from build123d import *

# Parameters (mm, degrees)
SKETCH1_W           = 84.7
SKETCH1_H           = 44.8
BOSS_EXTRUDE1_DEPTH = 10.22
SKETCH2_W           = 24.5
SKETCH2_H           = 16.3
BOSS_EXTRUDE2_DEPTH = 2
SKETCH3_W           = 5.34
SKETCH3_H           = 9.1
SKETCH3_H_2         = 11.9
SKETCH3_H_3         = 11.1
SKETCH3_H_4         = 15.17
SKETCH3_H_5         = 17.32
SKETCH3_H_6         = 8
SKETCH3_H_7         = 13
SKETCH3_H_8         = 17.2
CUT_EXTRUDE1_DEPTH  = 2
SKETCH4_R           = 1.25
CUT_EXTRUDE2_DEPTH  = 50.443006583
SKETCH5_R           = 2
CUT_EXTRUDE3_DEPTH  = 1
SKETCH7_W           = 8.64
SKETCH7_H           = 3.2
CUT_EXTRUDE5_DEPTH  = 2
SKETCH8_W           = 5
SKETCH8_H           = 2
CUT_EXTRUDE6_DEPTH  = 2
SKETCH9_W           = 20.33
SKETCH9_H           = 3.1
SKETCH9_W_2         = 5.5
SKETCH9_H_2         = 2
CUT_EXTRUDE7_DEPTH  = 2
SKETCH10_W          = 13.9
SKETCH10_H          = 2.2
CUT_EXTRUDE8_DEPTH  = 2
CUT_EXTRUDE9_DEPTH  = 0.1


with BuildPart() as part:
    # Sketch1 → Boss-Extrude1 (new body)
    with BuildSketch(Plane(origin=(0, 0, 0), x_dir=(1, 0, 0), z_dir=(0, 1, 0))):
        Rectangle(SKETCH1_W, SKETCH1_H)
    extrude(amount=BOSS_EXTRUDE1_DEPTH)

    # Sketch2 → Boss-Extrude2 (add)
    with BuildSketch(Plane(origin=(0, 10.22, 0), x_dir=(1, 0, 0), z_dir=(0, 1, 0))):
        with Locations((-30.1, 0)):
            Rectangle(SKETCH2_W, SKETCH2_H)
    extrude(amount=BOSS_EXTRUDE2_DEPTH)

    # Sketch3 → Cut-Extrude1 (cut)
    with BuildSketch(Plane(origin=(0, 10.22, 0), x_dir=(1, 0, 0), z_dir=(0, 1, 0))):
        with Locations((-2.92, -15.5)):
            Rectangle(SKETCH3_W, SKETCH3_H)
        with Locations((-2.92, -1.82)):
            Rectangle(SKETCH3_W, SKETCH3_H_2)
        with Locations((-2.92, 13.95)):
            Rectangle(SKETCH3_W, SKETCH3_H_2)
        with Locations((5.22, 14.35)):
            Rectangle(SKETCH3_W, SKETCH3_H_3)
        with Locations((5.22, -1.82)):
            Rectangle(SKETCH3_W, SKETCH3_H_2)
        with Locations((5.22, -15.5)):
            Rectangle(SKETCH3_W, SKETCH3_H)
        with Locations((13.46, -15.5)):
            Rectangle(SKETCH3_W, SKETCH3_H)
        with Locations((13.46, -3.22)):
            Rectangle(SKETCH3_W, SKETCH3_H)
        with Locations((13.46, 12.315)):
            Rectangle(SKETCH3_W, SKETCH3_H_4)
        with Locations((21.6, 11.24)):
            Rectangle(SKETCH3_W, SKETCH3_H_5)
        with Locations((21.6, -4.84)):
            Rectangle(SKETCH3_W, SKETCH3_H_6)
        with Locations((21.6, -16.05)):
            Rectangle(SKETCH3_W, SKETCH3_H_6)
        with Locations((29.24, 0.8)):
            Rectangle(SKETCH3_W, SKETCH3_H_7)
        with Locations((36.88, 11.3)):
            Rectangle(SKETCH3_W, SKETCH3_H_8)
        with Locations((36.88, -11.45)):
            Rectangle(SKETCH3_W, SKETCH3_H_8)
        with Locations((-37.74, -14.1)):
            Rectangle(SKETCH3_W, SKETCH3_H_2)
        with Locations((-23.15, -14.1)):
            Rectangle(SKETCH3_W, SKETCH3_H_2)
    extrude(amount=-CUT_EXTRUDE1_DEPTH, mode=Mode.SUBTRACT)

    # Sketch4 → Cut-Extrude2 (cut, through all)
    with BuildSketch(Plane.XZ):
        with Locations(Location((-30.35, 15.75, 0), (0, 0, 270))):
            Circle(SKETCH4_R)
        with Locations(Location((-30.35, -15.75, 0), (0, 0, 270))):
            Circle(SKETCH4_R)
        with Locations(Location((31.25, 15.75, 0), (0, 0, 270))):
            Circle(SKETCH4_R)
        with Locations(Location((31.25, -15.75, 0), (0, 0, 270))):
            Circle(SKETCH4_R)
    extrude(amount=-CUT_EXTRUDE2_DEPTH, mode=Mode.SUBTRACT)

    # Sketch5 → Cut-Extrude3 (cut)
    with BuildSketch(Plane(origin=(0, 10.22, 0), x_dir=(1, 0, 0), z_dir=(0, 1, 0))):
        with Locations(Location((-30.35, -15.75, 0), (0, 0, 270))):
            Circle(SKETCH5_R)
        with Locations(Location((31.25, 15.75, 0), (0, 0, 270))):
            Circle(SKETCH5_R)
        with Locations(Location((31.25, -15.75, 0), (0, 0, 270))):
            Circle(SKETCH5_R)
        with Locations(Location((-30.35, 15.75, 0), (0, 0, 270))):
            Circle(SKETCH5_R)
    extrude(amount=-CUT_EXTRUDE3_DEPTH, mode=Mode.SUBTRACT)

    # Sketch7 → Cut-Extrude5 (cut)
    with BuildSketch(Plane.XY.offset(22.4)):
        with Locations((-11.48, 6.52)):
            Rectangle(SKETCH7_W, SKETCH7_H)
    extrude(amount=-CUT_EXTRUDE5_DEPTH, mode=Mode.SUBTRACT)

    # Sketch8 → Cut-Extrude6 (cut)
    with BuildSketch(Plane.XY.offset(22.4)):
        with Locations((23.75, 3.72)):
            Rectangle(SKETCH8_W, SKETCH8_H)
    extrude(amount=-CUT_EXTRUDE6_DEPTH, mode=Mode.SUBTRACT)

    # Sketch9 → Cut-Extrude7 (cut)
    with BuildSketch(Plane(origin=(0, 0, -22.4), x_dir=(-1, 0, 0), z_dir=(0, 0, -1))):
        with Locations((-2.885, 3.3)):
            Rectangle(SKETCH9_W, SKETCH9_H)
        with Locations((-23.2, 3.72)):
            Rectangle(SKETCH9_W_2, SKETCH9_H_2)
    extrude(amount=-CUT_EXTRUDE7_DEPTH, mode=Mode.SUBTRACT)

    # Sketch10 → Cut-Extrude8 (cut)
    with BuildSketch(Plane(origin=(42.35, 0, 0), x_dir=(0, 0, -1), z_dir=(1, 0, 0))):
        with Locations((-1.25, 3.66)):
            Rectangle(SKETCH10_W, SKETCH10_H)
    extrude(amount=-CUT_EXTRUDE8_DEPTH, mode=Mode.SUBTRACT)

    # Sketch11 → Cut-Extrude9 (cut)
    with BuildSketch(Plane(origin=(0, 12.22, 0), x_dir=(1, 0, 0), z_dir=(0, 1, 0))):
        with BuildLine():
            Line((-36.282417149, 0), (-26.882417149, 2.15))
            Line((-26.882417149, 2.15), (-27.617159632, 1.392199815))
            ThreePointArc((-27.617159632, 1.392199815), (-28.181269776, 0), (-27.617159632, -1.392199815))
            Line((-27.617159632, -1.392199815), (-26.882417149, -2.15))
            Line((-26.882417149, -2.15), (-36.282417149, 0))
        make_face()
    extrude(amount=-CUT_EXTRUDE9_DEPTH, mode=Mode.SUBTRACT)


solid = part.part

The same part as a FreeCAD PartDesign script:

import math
import FreeCAD as App
import Part
import Sketcher

V = App.Vector
Q = App.Units.Quantity


def add_polygon(sketch, points):
    """Adds a closed chain of lines whose ends are joined by coincident constraints."""
    first, n = sketch.GeometryCount, len(points)
    for a, b in zip(points, points[1:] + points[:1]):
        sketch.addGeometry(Part.LineSegment(App.Vector(*a, 0), App.Vector(*b, 0)), False)
    for i in range(n):
        sketch.addConstraint(Sketcher.Constraint("Coincident", first + i, 2, first + (i + 1) % n, 1))

doc = App.newDocument("Part")
body = doc.addObject("PartDesign::Body", "Body")

# Sketch on XZ plane
sketch1 = doc.addObject("Sketcher::SketchObject", "Sketch")
body.addObject(sketch1)
sketch1.AttachmentSupport = (doc.XZ_Plane, [""])
sketch1.MapMode = "FlatFace"
add_polygon(sketch1, [(-42, -22), (-42, 22), (42, 22), (42, -22)])  # lines 0-3
sketch1.addConstraint(Sketcher.Constraint("Vertical", 0))
sketch1.addConstraint(Sketcher.Constraint("Horizontal", 1))
sketch1.addConstraint(Sketcher.Constraint("Vertical", 2))
sketch1.addConstraint(Sketcher.Constraint("Horizontal", 3))
sketch1.addConstraint(Sketcher.Constraint("Symmetric", 0, 2, 2, 2, -1, 1))
sketch1.addConstraint(Sketcher.Constraint("DistanceX", 1, 1, 1, 2, Q("84.7 mm")))
sketch1.addConstraint(Sketcher.Constraint("DistanceY", 0, 1, 0, 2, Q("44.8 mm")))
pad1 = doc.addObject("PartDesign::Pad", "Pad")
body.addObject(pad1)
pad1.Profile = sketch1
pad1.Length = 10.22
pad1.Reversed = True

# Sketch on XZ plane
sketch2 = doc.addObject("Sketcher::SketchObject", "Sketch001")
body.addObject(sketch2)
sketch2.AttachmentSupport = (doc.XZ_Plane, [""])
sketch2.MapMode = "FlatFace"
sketch2.AttachmentOffset = App.Placement(V(0, 0, -10.22), App.Rotation())
add_polygon(sketch2, [(-42, -8), (-42, 8), (-18, 8), (-18, -8)])  # lines 0-3
sketch2.addConstraint(Sketcher.Constraint("Vertical", 0))
sketch2.addConstraint(Sketcher.Constraint("Horizontal", 1))
sketch2.addConstraint(Sketcher.Constraint("Vertical", 2))
sketch2.addConstraint(Sketcher.Constraint("Horizontal", 3))
sketch2.addConstraint(Sketcher.Constraint("DistanceX", 1, 1, 1, 2, Q("24.5 mm")))
sketch2.addConstraint(Sketcher.Constraint("DistanceY", 0, 1, 0, 2, Q("16.3 mm")))
sketch2.addConstraint(Sketcher.Constraint("DistanceX", 0, 2, -1, 1, Q("42.35 mm")))
sketch2.addConstraint(Sketcher.Constraint("DistanceY", -1, 1, 0, 2, Q("8.15 mm")))
pad2 = doc.addObject("PartDesign::Pad", "Pad001")
body.addObject(pad2)
pad2.Profile = sketch2
pad2.Length = 2
pad2.Reversed = True

# Sketch on XZ plane
sketch3 = doc.addObject("Sketcher::SketchObject", "Sketch002")
body.addObject(sketch3)
sketch3.AttachmentSupport = (doc.XZ_Plane, [""])
sketch3.MapMode = "FlatFace"
sketch3.AttachmentOffset = App.Placement(V(0, 0, -10.22), App.Rotation())
add_polygon(sketch3, [(-6, 11), (-6, 20), (0, 20), (0, 11)])  # lines 0-3
add_polygon(sketch3, [(-6, -4), (-6, 8), (0, 8), (0, -4)])  # lines 4-7
add_polygon(sketch3, [(-6, -20), (-6, -8), (0, -8), (0, -20)])  # lines 8-11
add_polygon(sketch3, [(3, -20), (3, -9), (8, -9), (8, -20)])  # lines 12-15
add_polygon(sketch3, [(3, -4), (3, 8), (8, 8), (8, -4)])  # lines 16-19
add_polygon(sketch3, [(3, 11), (3, 20), (8, 20), (8, 11)])  # lines 20-23
add_polygon(sketch3, [(11, 11), (11, 20), (16, 20), (16, 11)])  # lines 24-27
add_polygon(sketch3, [(11, -1), (11, 8), (16, 8), (16, -1)])  # lines 28-31
add_polygon(sketch3, [(11, -20), (11, -5), (16, -5), (16, -20)])  # lines 32-35
add_polygon(sketch3, [(19, -20), (19, -3), (24, -3), (24, -20)])  # lines 36-39
add_polygon(sketch3, [(19, 1), (19, 9), (24, 9), (24, 1)])  # lines 40-43
add_polygon(sketch3, [(19, 12), (19, 20), (24, 20), (24, 12)])  # lines 44-47
add_polygon(sketch3, [(27, -7), (27, 6), (32, 6), (32, -7)])  # lines 48-51
add_polygon(sketch3, [(34, -20), (34, -3), (40, -3), (40, -20)])  # lines 52-55
add_polygon(sketch3, [(34, 3), (34, 20), (40, 20), (40, 3)])  # lines 56-59
add_polygon(sketch3, [(-40, 8), (-40, 20), (-35, 20), (-35, 8)])  # lines 60-63
add_polygon(sketch3, [(-26, 8), (-26, 20), (-20, 20), (-20, 8)])  # lines 64-67
sketch3.addConstraint(Sketcher.Constraint("Vertical", 0))
sketch3.addConstraint(Sketcher.Constraint("Horizontal", 1))
sketch3.addConstraint(Sketcher.Constraint("Vertical", 2))
sketch3.addConstraint(Sketcher.Constraint("Horizontal", 3))
sketch3.addConstraint(Sketcher.Constraint("Vertical", 4))
sketch3.addConstraint(Sketcher.Constraint("Horizontal", 5))
sketch3.addConstraint(Sketcher.Constraint("Vertical", 6))
sketch3.addConstraint(Sketcher.Constraint("Horizontal", 7))
sketch3.addConstraint(Sketcher.Constraint("Vertical", 8))
sketch3.addConstraint(Sketcher.Constraint("Horizontal", 9))
sketch3.addConstraint(Sketcher.Constraint("Vertical", 10))
sketch3.addConstraint(Sketcher.Constraint("Horizontal", 11))
sketch3.addConstraint(Sketcher.Constraint("Vertical", 12))
sketch3.addConstraint(Sketcher.Constraint("Horizontal", 13))
sketch3.addConstraint(Sketcher.Constraint("Vertical", 14))
sketch3.addConstraint(Sketcher.Constraint("Horizontal", 15))
sketch3.addConstraint(Sketcher.Constraint("Vertical", 16))
sketch3.addConstraint(Sketcher.Constraint("Horizontal", 17))
sketch3.addConstraint(Sketcher.Constraint("Vertical", 18))
sketch3.addConstraint(Sketcher.Constraint("Horizontal", 19))
sketch3.addConstraint(Sketcher.Constraint("Vertical", 20))
sketch3.addConstraint(Sketcher.Constraint("Horizontal", 21))
sketch3.addConstraint(Sketcher.Constraint("Vertical", 22))
sketch3.addConstraint(Sketcher.Constraint("Horizontal", 23))
sketch3.addConstraint(Sketcher.Constraint("Vertical", 24))
sketch3.addConstraint(Sketcher.Constraint("Horizontal", 25))
sketch3.addConstraint(Sketcher.Constraint("Vertical", 26))
sketch3.addConstraint(Sketcher.Constraint("Horizontal", 27))
sketch3.addConstraint(Sketcher.Constraint("Vertical", 28))
sketch3.addConstraint(Sketcher.Constraint("Horizontal", 29))
sketch3.addConstraint(Sketcher.Constraint("Vertical", 30))
sketch3.addConstraint(Sketcher.Constraint("Horizontal", 31))
sketch3.addConstraint(Sketcher.Constraint("Vertical", 32))
sketch3.addConstraint(Sketcher.Constraint("Horizontal", 33))
sketch3.addConstraint(Sketcher.Constraint("Vertical", 34))
sketch3.addConstraint(Sketcher.Constraint("Horizontal", 35))
sketch3.addConstraint(Sketcher.Constraint("Vertical", 36))
sketch3.addConstraint(Sketcher.Constraint("Horizontal", 37))
sketch3.addConstraint(Sketcher.Constraint("Vertical", 38))
sketch3.addConstraint(Sketcher.Constraint("Horizontal", 39))
sketch3.addConstraint(Sketcher.Constraint("Vertical", 40))
sketch3.addConstraint(Sketcher.Constraint("Horizontal", 41))
sketch3.addConstraint(Sketcher.Constraint("Vertical", 42))
sketch3.addConstraint(Sketcher.Constraint("Horizontal", 43))
sketch3.addConstraint(Sketcher.Constraint("Vertical", 44))
sketch3.addConstraint(Sketcher.Constraint("Horizontal", 45))
sketch3.addConstraint(Sketcher.Constraint("Vertical", 46))
sketch3.addConstraint(Sketcher.Constraint("Horizontal", 47))
sketch3.addConstraint(Sketcher.Constraint("Vertical", 48))
sketch3.addConstraint(Sketcher.Constraint("Horizontal", 49))
sketch3.addConstraint(Sketcher.Constraint("Vertical", 50))
sketch3.addConstraint(Sketcher.Constraint("Horizontal", 51))
sketch3.addConstraint(Sketcher.Constraint("Vertical", 52))
sketch3.addConstraint(Sketcher.Constraint("Horizontal", 53))
sketch3.addConstraint(Sketcher.Constraint("Vertical", 54))
sketch3.addConstraint(Sketcher.Constraint("Horizontal", 55))
sketch3.addConstraint(Sketcher.Constraint("Vertical", 56))
sketch3.addConstraint(Sketcher.Constraint("Horizontal", 57))
sketch3.addConstraint(Sketcher.Constraint("Vertical", 58))
sketch3.addConstraint(Sketcher.Constraint("Horizontal", 59))
sketch3.addConstraint(Sketcher.Constraint("Vertical", 60))
sketch3.addConstraint(Sketcher.Constraint("Horizontal", 61))
sketch3.addConstraint(Sketcher.Constraint("Vertical", 62))
sketch3.addConstraint(Sketcher.Constraint("Horizontal", 63))
sketch3.addConstraint(Sketcher.Constraint("Vertical", 64))
sketch3.addConstraint(Sketcher.Constraint("Horizontal", 65))
sketch3.addConstraint(Sketcher.Constraint("Vertical", 66))
sketch3.addConstraint(Sketcher.Constraint("Horizontal", 67))
sketch3.addConstraint(Sketcher.Constraint("Horizontal", 11, 2, 14, 2))
sketch3.addConstraint(Sketcher.Constraint("Horizontal", 5, 2, 16, 2))
sketch3.addConstraint(Sketcher.Constraint("Horizontal", 7, 2, 18, 2))
sketch3.addConstraint(Sketcher.Constraint("Horizontal", 1, 2, 20, 2))
sketch3.addConstraint(Sketcher.Constraint("Horizontal", 3, 2, 22, 2))
sketch3.addConstraint(Sketcher.Constraint("Horizontal", 21, 2, 24, 2))
sketch3.addConstraint(Sketcher.Constraint("Horizontal", 23, 2, 26, 2))
sketch3.addConstraint(Sketcher.Constraint("Horizontal", 17, 2, 28, 2))
sketch3.addConstraint(Sketcher.Constraint("Horizontal", 15, 2, 34, 2))
sketch3.addConstraint(Sketcher.Constraint("Horizontal", 35, 2, 38, 2))
sketch3.addConstraint(Sketcher.Constraint("Horizontal", 25, 2, 44, 2))
sketch3.addConstraint(Sketcher.Constraint("Horizontal", 39, 2, 54, 2))
sketch3.addConstraint(Sketcher.Constraint("Horizontal", 45, 2, 56, 2))
sketch3.addConstraint(Sketcher.Constraint("Horizontal", 57, 2, 60, 2))
sketch3.addConstraint(Sketcher.Constraint("Horizontal", 61, 2, 64, 2))
sketch3.addConstraint(Sketcher.Constraint("Horizontal", 63, 2, 66, 2))
sketch3.addConstraint(Sketcher.Constraint("Vertical", 3, 2, 4, 2))
sketch3.addConstraint(Sketcher.Constraint("Vertical", 2, 2, 5, 2))
sketch3.addConstraint(Sketcher.Constraint("Vertical", 7, 2, 8, 2))
sketch3.addConstraint(Sketcher.Constraint("Vertical", 6, 2, 9, 2))
sketch3.addConstraint(Sketcher.Constraint("Vertical", 15, 2, 16, 2))
sketch3.addConstraint(Sketcher.Constraint("Vertical", 14, 2, 17, 2))
sketch3.addConstraint(Sketcher.Constraint("Vertical", 19, 2, 20, 2))
sketch3.addConstraint(Sketcher.Constraint("Vertical", 18, 2, 21, 2))
sketch3.addConstraint(Sketcher.Constraint("Vertical", 27, 2, 28, 2))
sketch3.addConstraint(Sketcher.Constraint("Vertical", 26, 2, 29, 2))
sketch3.addConstraint(Sketcher.Constraint("Vertical", 31, 2, 32, 2))
sketch3.addConstraint(Sketcher.Constraint("Vertical", 30, 2, 33, 2))
sketch3.addConstraint(Sketcher.Constraint("Vertical", 39, 2, 40, 2))
sketch3.addConstraint(Sketcher.Constraint("Vertical", 38, 2, 41, 2))
sketch3.addConstraint(Sketcher.Constraint("Vertical", 43, 2, 44, 2))
sketch3.addConstraint(Sketcher.Constraint("Vertical", 42, 2, 45, 2))
sketch3.addConstraint(Sketcher.Constraint("Vertical", 55, 2, 56, 2))
sketch3.addConstraint(Sketcher.Constraint("Vertical", 54, 2, 57, 2))
sketch3.addConstraint(Sketcher.Constraint("Equal", 11, 13))
sketch3.addConstraint(Sketcher.Constraint("Equal", 23, 25))
sketch3.addConstraint(Sketcher.Constraint("Equal", 35, 37))
sketch3.addConstraint(Sketcher.Constraint("Equal", 47, 49))
sketch3.addConstraint(Sketcher.Constraint("Equal", 51, 53))
sketch3.addConstraint(Sketcher.Constraint("Equal", 59, 61))
sketch3.addConstraint(Sketcher.Constraint("Equal", 63, 65))
sketch3.addConstraint(Sketcher.Constraint("Equal", 6, 8))
sketch3.addConstraint(Sketcher.Constraint("Equal", 26, 28))
sketch3.addConstraint(Sketcher.Constraint("Equal", 42, 44))
sketch3.addConstraint(Sketcher.Constraint("Equal", 54, 56))
sketch3.addConstraint(Sketcher.Constraint("Equal", 18, 60))
sketch3.addConstraint(Sketcher.Constraint("DistanceY", 40, 1, 40, 2, Q("8 mm")))
sketch3.addConstraint(Sketcher.Constraint("DistanceY", 48, 1, 48, 2, Q("13 mm")))
sketch3.addConstraint(Sketcher.Constraint("DistanceY", 0, 1, 0, 2, Q("9.1 mm")))
sketch3.addConstraint(Sketcher.Constraint("DistanceY", 4, 1, 4, 2, Q("11.9 mm")))
sketch3.addConstraint(Sketcher.Constraint("DistanceY", 12, 1, 12, 2, Q("11.1 mm")))
sketch3.addConstraint(Sketcher.Constraint("DistanceY", 52, 1, 52, 2, Q("17.2 mm")))
sketch3.addConstraint(Sketcher.Constraint("DistanceY", 8, 2, -1, 1, Q("8 mm")))
sketch3.addConstraint(Sketcher.Constraint("DistanceX", 1, 1, 1, 2, Q("5.34 mm")))
sketch3.addConstraint(Sketcher.Constraint("DistanceY", 32, 1, 32, 2, Q("15.17 mm")))
sketch3.addConstraint(Sketcher.Constraint("DistanceY", 36, 1, 36, 2, Q("17.32 mm")))
sketch3.addConstraint(Sketcher.Constraint("DistanceY", -1, 1, 48, 2, Q("5.7 mm")))
sketch3.addConstraint(Sketcher.Constraint("DistanceX", 0, 2, -1, 1, Q("5.59 mm")))
sketch3.addConstraint(Sketcher.Constraint("DistanceY", -1, 1, 0, 2, Q("20.05 mm")))
sketch3.addConstraint(Sketcher.Constraint("DistanceY", -1, 1, 4, 2, Q("7.77 mm")))
sketch3.addConstraint(Sketcher.Constraint("DistanceX", -1, 1, 12, 2, Q("2.55 mm")))
sketch3.addConstraint(Sketcher.Constraint("DistanceX", -1, 1, 24, 2, Q("10.79 mm")))
sketch3.addConstraint(Sketcher.Constraint("DistanceX", -1, 1, 36, 2, Q("18.93 mm")))
sketch3.addConstraint(Sketcher.Constraint("DistanceY", -1, 1, 40, 2, Q("8.84 mm")))
sketch3.addConstraint(Sketcher.Constraint("DistanceX", -1, 1, 48, 2, Q("26.57 mm")))
sketch3.addConstraint(Sketcher.Constraint("DistanceX", -1, 1, 52, 2, Q("34.21 mm")))
sketch3.addConstraint(Sketcher.Constraint("DistanceX", 60, 2, -1, 1, Q("40.41 mm")))
sketch3.addConstraint(Sketcher.Constraint("DistanceX", 64, 2, -1, 1, Q("25.82 mm")))
pocket1 = doc.addObject("PartDesign::Pocket", "Pocket")
body.addObject(pocket1)
pocket1.Profile = sketch3
pocket1.Length = 2
pocket1.Reversed = True

# Sketch on XZ plane
sketch4 = doc.addObject("Sketcher::SketchObject", "Sketch003")
body.addObject(sketch4)
sketch4.AttachmentSupport = (doc.XZ_Plane, [""])
sketch4.MapMode = "FlatFace"
sketch4.addGeometry(Part.Circle(V(-30.4, 15.8, 0), V(0, 0, 1), 1.2), False)
sketch4.addGeometry(Part.Circle(V(-30.4, -15.8, 0), V(0, 0, 1), 1.2), False)
sketch4.addGeometry(Part.Circle(V(31.2, 15.8, 0), V(0, 0, 1), 1.2), False)
sketch4.addGeometry(Part.Circle(V(31.2, -15.8, 0), V(0, 0, 1), 1.2), False)
sketch4.addConstraint(Sketcher.Constraint("Equal", 0, 1))
sketch4.addConstraint(Sketcher.Constraint("Equal", 1, 2))
sketch4.addConstraint(Sketcher.Constraint("Equal", 2, 3))
sketch4.addConstraint(Sketcher.Constraint("Symmetric", 0, 3, 1, 3, -1))
sketch4.addConstraint(Sketcher.Constraint("Symmetric", 2, 3, 3, 3, -1))
sketch4.addConstraint(Sketcher.Constraint("Horizontal", 0, 3, 2, 3))
sketch4.addConstraint(Sketcher.Constraint("Diameter", 0, Q("2.5 mm")))
sketch4.addConstraint(Sketcher.Constraint("DistanceY", 1, 3, 0, 3, Q("31.5 mm")))
sketch4.addConstraint(Sketcher.Constraint("DistanceX", 0, 3, 2, 3, Q("61.6 mm")))
sketch4.addConstraint(Sketcher.Constraint("DistanceX", 0, 3, -1, 1, Q("30.35 mm")))
pocket2 = doc.addObject("PartDesign::Pocket", "Pocket001")
body.addObject(pocket2)
pocket2.Profile = sketch4
pocket2.Type = "ThroughAll"

# Sketch on XZ plane
sketch5 = doc.addObject("Sketcher::SketchObject", "Sketch004")
body.addObject(sketch5)
sketch5.AttachmentSupport = (doc.XZ_Plane, [""])
sketch5.MapMode = "FlatFace"
sketch5.AttachmentOffset = App.Placement(V(0, 0, -10.22), App.Rotation())
sketch5.addGeometry(Part.Circle(V(-30.4, 15.8, 0), V(0, 0, 1), 2), False)
sketch5.addGeometry(Part.Circle(V(31.2, -15.8, 0), V(0, 0, 1), 2), False)
sketch5.addGeometry(Part.Circle(V(31.2, 15.8, 0), V(0, 0, 1), 2), False)
sketch5.addGeometry(Part.Circle(V(-30.4, -15.8, 0), V(0, 0, 1), 2), False)
sketch5.addConstraint(Sketcher.Constraint("Equal", 0, 1))
sketch5.addConstraint(Sketcher.Constraint("Equal", 1, 2))
sketch5.addConstraint(Sketcher.Constraint("Equal", 2, 3))
sketch5.addConstraint(Sketcher.Constraint("Symmetric", 1, 3, 2, 3, -1))
sketch5.addConstraint(Sketcher.Constraint("Symmetric", 0, 3, 3, 3, -1))
sketch5.addConstraint(Sketcher.Constraint("Horizontal", 0, 3, 2, 3))
sketch5.addConstraint(Sketcher.Constraint("Diameter", 0, Q("4 mm")))
sketch5.addConstraint(Sketcher.Constraint("DistanceX", 0, 3, 1, 3, Q("61.6 mm")))
sketch5.addConstraint(Sketcher.Constraint("DistanceY", 1, 3, 0, 3, Q("31.5 mm")))
sketch5.addConstraint(Sketcher.Constraint("DistanceX", 0, 3, -1, 1, Q("30.35 mm")))
pocket3 = doc.addObject("PartDesign::Pocket", "Pocket002")
body.addObject(pocket3)
pocket3.Profile = sketch5
pocket3.Length = 1
pocket3.Reversed = True

# Sketch on XY plane
sketch6 = doc.addObject("Sketcher::SketchObject", "Sketch005")
body.addObject(sketch6)
sketch6.AttachmentSupport = (doc.XY_Plane, [""])
sketch6.MapMode = "FlatFace"
sketch6.AttachmentOffset = App.Placement(V(0, 0, 22.4), App.Rotation())
add_polygon(sketch6, [(-15.8, 8.1), (-15.8, 4.9), (-7.2, 4.9), (-7.2, 8.1)])  # lines 0-3
sketch6.addConstraint(Sketcher.Constraint("Vertical", 0))
sketch6.addConstraint(Sketcher.Constraint("Horizontal", 1))
sketch6.addConstraint(Sketcher.Constraint("Vertical", 2))
sketch6.addConstraint(Sketcher.Constraint("Horizontal", 3))
sketch6.addConstraint(Sketcher.Constraint("DistanceY", 0, 2, 0, 1, Q("3.2 mm")))
sketch6.addConstraint(Sketcher.Constraint("DistanceX", 1, 1, 1, 2, Q("8.64 mm")))
sketch6.addConstraint(Sketcher.Constraint("DistanceX", 0, 2, -1, 1, Q("15.8 mm")))
sketch6.addConstraint(Sketcher.Constraint("DistanceY", -1, 1, 0, 2, Q("4.92 mm")))
pocket4 = doc.addObject("PartDesign::Pocket", "Pocket003")
body.addObject(pocket4)
pocket4.Profile = sketch6
pocket4.Length = 2

# Sketch on XY plane
sketch7 = doc.addObject("Sketcher::SketchObject", "Sketch006")
body.addObject(sketch7)
sketch7.AttachmentSupport = (doc.XY_Plane, [""])
sketch7.MapMode = "FlatFace"
sketch7.AttachmentOffset = App.Placement(V(0, 0, 22.4), App.Rotation())
add_polygon(sketch7, [(21.2, 4.7), (21.2, 2.7), (26.2, 2.7), (26.2, 4.7)])  # lines 0-3
sketch7.addConstraint(Sketcher.Constraint("Vertical", 0))
sketch7.addConstraint(Sketcher.Constraint("Horizontal", 1))
sketch7.addConstraint(Sketcher.Constraint("Vertical", 2))
sketch7.addConstraint(Sketcher.Constraint("Horizontal", 3))
sketch7.addConstraint(Sketcher.Constraint("DistanceX", 1, 1, 1, 2, Q("5 mm")))
sketch7.addConstraint(Sketcher.Constraint("DistanceY", 0, 2, 0, 1, Q("2 mm")))
sketch7.addConstraint(Sketcher.Constraint("DistanceX", -1, 1, 0, 2, Q("21.25 mm")))
sketch7.addConstraint(Sketcher.Constraint("DistanceY", -1, 1, 0, 2, Q("2.72 mm")))
pocket5 = doc.addObject("PartDesign::Pocket", "Pocket004")
body.addObject(pocket5)
pocket5.Profile = sketch7
pocket5.Length = 2

# Sketch on XY plane
sketch8 = doc.addObject("Sketcher::SketchObject", "Sketch007")
body.addObject(sketch8)
sketch8.AttachmentSupport = (doc.XY_Plane, [""])
sketch8.MapMode = "FlatFace"
sketch8.AttachmentOffset = App.Placement(V(0, 0, -22.4), App.Rotation())
add_polygon(sketch8, [(13.1, 4.8), (13.1, 1.8), (-7.3, 1.8), (-7.3, 4.8)])  # lines 0-3
add_polygon(sketch8, [(25.9, 4.7), (25.9, 2.7), (20.4, 2.7), (20.4, 4.7)])  # lines 4-7
sketch8.addConstraint(Sketcher.Constraint("Vertical", 0))
sketch8.addConstraint(Sketcher.Constraint("Horizontal", 1))
sketch8.addConstraint(Sketcher.Constraint("Vertical", 2))
sketch8.addConstraint(Sketcher.Constraint("Horizontal", 3))
sketch8.addConstraint(Sketcher.Constraint("Vertical", 4))
sketch8.addConstraint(Sketcher.Constraint("Horizontal", 5))
sketch8.addConstraint(Sketcher.Constraint("Vertical", 6))
sketch8.addConstraint(Sketcher.Constraint("Horizontal", 7))
sketch8.addConstraint(Sketcher.Constraint("DistanceY", 4, 2, 4, 1, Q("2 mm")))
sketch8.addConstraint(Sketcher.Constraint("DistanceX", 5, 2, 5, 1, Q("5.5 mm")))
sketch8.addConstraint(Sketcher.Constraint("DistanceY", 0, 2, 0, 1, Q("3.1 mm")))
sketch8.addConstraint(Sketcher.Constraint("DistanceX", 1, 2, 1, 1, Q("20.33 mm")))
sketch8.addConstraint(Sketcher.Constraint("DistanceX", 0, 2, 4, 2, Q("12.9 mm")))
sketch8.addConstraint(Sketcher.Constraint("DistanceX", -1, 1, 0, 2, Q("13.05 mm")))
sketch8.addConstraint(Sketcher.Constraint("DistanceY", -1, 1, 0, 2, Q("1.75 mm")))
sketch8.addConstraint(Sketcher.Constraint("DistanceY", -1, 1, 4, 2, Q("2.72 mm")))
pocket6 = doc.addObject("PartDesign::Pocket", "Pocket005")
body.addObject(pocket6)
pocket6.Profile = sketch8
pocket6.Length = 2
pocket6.Reversed = True

# Sketch on YZ plane
sketch9 = doc.addObject("Sketcher::SketchObject", "Sketch008")
body.addObject(sketch9)
sketch9.AttachmentSupport = (doc.YZ_Plane, [""])
sketch9.MapMode = "FlatFace"
sketch9.AttachmentOffset = App.Placement(V(0, 0, 42.35), App.Rotation())
add_polygon(sketch9, [(4.8, 8.2), (2.6, 8.2), (2.6, -5.7), (4.8, -5.7)])  # lines 0-3
sketch9.addConstraint(Sketcher.Constraint("Horizontal", 0))
sketch9.addConstraint(Sketcher.Constraint("Vertical", 1))
sketch9.addConstraint(Sketcher.Constraint("Horizontal", 2))
sketch9.addConstraint(Sketcher.Constraint("Vertical", 3))
sketch9.addConstraint(Sketcher.Constraint("DistanceX", 0, 2, 0, 1, Q("2.2 mm")))
sketch9.addConstraint(Sketcher.Constraint("DistanceY", 1, 2, 1, 1, Q("13.9 mm")))
sketch9.addConstraint(Sketcher.Constraint("DistanceY", -1, 1, 0, 2, Q("8.2 mm")))
sketch9.addConstraint(Sketcher.Constraint("DistanceX", -1, 1, 0, 2, Q("2.56 mm")))
pocket7 = doc.addObject("PartDesign::Pocket", "Pocket006")
body.addObject(pocket7)
pocket7.Profile = sketch9
pocket7.Length = 2

# Sketch on XZ plane
sketch10 = doc.addObject("Sketcher::SketchObject", "Sketch009")
body.addObject(sketch10)
sketch10.AttachmentSupport = (doc.XZ_Plane, [""])
sketch10.MapMode = "FlatFace"
sketch10.AttachmentOffset = App.Placement(V(0, 0, -12.22), App.Rotation())
sketch10.addGeometry(Part.LineSegment(V(-26.9, -2.1, 0), V(-36.3, 0, 0)), False)
sketch10.addGeometry(Part.LineSegment(V(-36.3, 0, 0), V(-26.9, 2.1, 0)), False)
sketch10.addGeometry(Part.LineSegment(V(-26.9, 2.1, 0), V(-27.6, 1.4, 0)), False)
sketch10.addGeometry(Part.ArcOfCircle(Part.Circle(V(-26.2, 0, 0), V(0, 0, 1), 2), math.radians(136), math.radians(224)), False)
sketch10.addGeometry(Part.LineSegment(V(-27.6, -1.4, 0), V(-26.9, -2.1, 0)), False)
sketch10.addConstraint(Sketcher.Constraint("Coincident", 0, 2, 1, 1))
sketch10.addConstraint(Sketcher.Constraint("Coincident", 1, 2, 2, 1))
sketch10.addConstraint(Sketcher.Constraint("Tangent", 2, 2, 3, 1))
sketch10.addConstraint(Sketcher.Constraint("Tangent", 3, 2, 4, 1))
sketch10.addConstraint(Sketcher.Constraint("Coincident", 4, 2, 0, 1))
sketch10.addConstraint(Sketcher.Constraint("Symmetric", 2, 2, 3, 2, -1))
sketch10.addConstraint(Sketcher.Constraint("PointOnObject", 0, 2, -1))
sketch10.addConstraint(Sketcher.Constraint("Vertical", 1, 2, 4, 2))
sketch10.addConstraint(Sketcher.Constraint("Radius", 3, Q("2 mm")))
sketch10.addConstraint(Sketcher.Constraint("DistanceX", 0, 2, 1, 2, Q("9.4 mm")))
sketch10.addConstraint(Sketcher.Constraint("DistanceY", 4, 2, 1, 2, Q("4.3 mm")))
sketch10.addConstraint(Sketcher.Constraint("DistanceY", -1, 1, 2, 2, Q("1.3922 mm")))
sketch10.addConstraint(Sketcher.Constraint("DistanceX", 3, 3, -1, 1, Q("26.18127 mm")))
pocket8 = doc.addObject("PartDesign::Pocket", "Pocket007")
body.addObject(pocket8)
pocket8.Profile = sketch10
pocket8.Length = 0.1
pocket8.Reversed = True

doc.recompute()
